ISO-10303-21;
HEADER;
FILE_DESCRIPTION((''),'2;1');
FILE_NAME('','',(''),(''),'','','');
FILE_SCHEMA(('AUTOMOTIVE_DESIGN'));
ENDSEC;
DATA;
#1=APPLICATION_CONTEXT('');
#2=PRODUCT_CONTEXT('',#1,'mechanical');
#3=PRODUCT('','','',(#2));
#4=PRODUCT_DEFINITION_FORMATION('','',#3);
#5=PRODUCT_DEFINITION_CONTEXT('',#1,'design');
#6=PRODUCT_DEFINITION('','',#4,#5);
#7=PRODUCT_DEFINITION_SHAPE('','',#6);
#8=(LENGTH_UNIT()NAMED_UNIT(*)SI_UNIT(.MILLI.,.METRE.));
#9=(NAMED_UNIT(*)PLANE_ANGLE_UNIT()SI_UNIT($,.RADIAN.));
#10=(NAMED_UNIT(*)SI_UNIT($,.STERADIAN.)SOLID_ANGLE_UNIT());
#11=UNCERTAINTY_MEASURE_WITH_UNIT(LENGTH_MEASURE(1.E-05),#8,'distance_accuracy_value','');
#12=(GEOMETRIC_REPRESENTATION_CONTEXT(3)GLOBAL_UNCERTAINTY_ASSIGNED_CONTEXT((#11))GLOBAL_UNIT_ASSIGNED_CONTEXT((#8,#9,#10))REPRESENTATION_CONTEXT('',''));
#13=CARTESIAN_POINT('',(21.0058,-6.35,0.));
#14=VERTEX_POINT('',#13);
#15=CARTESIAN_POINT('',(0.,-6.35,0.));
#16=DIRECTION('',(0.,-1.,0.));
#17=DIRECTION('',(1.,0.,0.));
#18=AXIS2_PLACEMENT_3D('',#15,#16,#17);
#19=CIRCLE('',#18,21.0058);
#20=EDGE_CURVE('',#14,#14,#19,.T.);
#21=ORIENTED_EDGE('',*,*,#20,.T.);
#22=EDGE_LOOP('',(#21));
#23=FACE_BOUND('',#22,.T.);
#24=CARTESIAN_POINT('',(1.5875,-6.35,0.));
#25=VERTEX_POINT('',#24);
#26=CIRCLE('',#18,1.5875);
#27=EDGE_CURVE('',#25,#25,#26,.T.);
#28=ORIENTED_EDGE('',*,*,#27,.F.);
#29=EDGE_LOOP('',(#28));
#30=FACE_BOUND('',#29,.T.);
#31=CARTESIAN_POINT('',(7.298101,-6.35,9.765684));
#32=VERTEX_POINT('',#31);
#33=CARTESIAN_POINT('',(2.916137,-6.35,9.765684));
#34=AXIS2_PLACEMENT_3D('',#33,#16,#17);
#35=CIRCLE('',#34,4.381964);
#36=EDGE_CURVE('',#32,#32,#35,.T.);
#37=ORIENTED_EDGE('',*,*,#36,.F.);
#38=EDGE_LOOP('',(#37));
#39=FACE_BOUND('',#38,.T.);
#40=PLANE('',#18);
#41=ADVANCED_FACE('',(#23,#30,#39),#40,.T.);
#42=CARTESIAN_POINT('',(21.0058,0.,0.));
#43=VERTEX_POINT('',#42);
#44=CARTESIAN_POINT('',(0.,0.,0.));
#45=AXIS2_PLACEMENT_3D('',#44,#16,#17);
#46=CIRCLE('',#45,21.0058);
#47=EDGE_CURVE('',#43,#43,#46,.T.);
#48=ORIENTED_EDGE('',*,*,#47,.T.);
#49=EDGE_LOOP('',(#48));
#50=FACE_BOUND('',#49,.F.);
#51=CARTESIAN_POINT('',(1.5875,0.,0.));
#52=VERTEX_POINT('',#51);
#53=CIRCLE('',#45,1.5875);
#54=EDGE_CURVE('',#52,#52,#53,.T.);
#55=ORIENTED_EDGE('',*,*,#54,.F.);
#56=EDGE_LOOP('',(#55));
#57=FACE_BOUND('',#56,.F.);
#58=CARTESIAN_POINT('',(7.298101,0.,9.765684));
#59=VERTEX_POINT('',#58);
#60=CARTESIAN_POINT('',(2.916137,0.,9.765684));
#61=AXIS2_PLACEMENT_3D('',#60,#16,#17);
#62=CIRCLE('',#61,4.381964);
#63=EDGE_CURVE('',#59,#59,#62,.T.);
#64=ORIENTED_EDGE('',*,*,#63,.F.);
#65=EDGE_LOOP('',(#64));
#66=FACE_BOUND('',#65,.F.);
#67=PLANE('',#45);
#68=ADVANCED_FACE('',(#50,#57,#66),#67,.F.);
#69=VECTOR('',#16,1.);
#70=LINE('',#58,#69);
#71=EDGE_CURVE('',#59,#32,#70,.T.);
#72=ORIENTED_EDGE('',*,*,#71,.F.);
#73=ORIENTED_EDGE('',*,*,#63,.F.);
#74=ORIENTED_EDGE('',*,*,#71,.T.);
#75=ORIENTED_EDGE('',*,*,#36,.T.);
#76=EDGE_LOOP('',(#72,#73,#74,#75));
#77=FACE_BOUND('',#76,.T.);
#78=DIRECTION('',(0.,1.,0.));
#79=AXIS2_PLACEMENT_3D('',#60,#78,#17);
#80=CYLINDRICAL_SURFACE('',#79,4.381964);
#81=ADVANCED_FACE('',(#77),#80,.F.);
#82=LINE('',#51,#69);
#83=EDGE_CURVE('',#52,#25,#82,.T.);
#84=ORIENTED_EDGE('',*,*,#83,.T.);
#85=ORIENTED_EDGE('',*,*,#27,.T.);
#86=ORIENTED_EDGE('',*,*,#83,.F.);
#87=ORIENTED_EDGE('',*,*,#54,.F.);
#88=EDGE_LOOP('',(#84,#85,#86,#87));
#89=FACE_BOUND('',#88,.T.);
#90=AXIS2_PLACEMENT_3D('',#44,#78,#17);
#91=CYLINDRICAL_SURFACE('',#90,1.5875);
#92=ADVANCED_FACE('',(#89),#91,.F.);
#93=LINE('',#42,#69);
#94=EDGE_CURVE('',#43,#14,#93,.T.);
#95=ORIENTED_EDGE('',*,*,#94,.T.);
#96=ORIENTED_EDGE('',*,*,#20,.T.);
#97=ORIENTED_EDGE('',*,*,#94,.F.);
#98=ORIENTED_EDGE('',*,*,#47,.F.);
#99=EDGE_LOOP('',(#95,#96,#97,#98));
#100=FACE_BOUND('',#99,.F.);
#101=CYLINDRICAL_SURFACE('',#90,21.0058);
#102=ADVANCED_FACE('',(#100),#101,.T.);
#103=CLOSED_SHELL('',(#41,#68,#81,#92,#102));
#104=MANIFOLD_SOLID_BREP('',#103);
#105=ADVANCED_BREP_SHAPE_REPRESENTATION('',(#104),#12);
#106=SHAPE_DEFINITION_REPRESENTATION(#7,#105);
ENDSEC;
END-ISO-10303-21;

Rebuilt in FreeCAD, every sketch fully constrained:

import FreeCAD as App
import Part
import Sketcher

V = App.Vector
Q = App.Units.Quantity

doc = App.newDocument("Part")
params = doc.addObject("Spreadsheet::Sheet", "Params")
for row, (alias, value) in enumerate([
    ("sketch1_diameter", "1.654 in"),
    ("sketch1_diameter2", "0.125 in"),
    ("pad1_length", "0.25 in"),
], start=1):
    params.set(f"A{row}", alias)
    params.set(f"B{row}", "=" + value)
    params.setAlias(f"B{row}", alias)

body = doc.addObject("PartDesign::Body", "Body")

# Sketch on XZ plane
sketch1 = doc.addObject("Sketcher::SketchObject", "Sketch")
body.addObject(sketch1)
sketch1.AttachmentSupport = (doc.XZ_Plane, [""])
sketch1.MapMode = "FlatFace"
sketch1.addGeometry([
    Part.Circle(V(0, 0, 0), V(0, 0, 1), 21.0058),
    Part.Circle(V(0, 0, 0), V(0, 0, 1), 1.5875),
    Part.Circle(V(2.916137, 9.765684, 0), V(0, 0, 1), 4.381964),
], False)
sketch1.addConstraint([
    Sketcher.Constraint("Coincident", 0, 3, -1, 1),
    Sketcher.Constraint("Coincident", 1, 3, -1, 1),
    Sketcher.Constraint("Diameter", 0, Q("1.654 in")),
    Sketcher.Constraint("Diameter", 1, Q("0.125 in")),
    Sketcher.Constraint("Diameter", 2, 8.763928),
    Sketcher.Constraint("DistanceX", -1, 1, 2, 3, 2.916137),
    Sketcher.Constraint("DistanceY", -1, 1, 2, 3, 9.765684),
])
sketch1.setExpression("Constraints[2]", "Params.sketch1_diameter")
sketch1.setExpression("Constraints[3]", "Params.sketch1_diameter2")
pad1 = doc.addObject("PartDesign::Pad", "Pad")
body.addObject(pad1)
pad1.Profile = sketch1
pad1.setExpression("Length", "Params.pad1_length")

doc.recompute()
